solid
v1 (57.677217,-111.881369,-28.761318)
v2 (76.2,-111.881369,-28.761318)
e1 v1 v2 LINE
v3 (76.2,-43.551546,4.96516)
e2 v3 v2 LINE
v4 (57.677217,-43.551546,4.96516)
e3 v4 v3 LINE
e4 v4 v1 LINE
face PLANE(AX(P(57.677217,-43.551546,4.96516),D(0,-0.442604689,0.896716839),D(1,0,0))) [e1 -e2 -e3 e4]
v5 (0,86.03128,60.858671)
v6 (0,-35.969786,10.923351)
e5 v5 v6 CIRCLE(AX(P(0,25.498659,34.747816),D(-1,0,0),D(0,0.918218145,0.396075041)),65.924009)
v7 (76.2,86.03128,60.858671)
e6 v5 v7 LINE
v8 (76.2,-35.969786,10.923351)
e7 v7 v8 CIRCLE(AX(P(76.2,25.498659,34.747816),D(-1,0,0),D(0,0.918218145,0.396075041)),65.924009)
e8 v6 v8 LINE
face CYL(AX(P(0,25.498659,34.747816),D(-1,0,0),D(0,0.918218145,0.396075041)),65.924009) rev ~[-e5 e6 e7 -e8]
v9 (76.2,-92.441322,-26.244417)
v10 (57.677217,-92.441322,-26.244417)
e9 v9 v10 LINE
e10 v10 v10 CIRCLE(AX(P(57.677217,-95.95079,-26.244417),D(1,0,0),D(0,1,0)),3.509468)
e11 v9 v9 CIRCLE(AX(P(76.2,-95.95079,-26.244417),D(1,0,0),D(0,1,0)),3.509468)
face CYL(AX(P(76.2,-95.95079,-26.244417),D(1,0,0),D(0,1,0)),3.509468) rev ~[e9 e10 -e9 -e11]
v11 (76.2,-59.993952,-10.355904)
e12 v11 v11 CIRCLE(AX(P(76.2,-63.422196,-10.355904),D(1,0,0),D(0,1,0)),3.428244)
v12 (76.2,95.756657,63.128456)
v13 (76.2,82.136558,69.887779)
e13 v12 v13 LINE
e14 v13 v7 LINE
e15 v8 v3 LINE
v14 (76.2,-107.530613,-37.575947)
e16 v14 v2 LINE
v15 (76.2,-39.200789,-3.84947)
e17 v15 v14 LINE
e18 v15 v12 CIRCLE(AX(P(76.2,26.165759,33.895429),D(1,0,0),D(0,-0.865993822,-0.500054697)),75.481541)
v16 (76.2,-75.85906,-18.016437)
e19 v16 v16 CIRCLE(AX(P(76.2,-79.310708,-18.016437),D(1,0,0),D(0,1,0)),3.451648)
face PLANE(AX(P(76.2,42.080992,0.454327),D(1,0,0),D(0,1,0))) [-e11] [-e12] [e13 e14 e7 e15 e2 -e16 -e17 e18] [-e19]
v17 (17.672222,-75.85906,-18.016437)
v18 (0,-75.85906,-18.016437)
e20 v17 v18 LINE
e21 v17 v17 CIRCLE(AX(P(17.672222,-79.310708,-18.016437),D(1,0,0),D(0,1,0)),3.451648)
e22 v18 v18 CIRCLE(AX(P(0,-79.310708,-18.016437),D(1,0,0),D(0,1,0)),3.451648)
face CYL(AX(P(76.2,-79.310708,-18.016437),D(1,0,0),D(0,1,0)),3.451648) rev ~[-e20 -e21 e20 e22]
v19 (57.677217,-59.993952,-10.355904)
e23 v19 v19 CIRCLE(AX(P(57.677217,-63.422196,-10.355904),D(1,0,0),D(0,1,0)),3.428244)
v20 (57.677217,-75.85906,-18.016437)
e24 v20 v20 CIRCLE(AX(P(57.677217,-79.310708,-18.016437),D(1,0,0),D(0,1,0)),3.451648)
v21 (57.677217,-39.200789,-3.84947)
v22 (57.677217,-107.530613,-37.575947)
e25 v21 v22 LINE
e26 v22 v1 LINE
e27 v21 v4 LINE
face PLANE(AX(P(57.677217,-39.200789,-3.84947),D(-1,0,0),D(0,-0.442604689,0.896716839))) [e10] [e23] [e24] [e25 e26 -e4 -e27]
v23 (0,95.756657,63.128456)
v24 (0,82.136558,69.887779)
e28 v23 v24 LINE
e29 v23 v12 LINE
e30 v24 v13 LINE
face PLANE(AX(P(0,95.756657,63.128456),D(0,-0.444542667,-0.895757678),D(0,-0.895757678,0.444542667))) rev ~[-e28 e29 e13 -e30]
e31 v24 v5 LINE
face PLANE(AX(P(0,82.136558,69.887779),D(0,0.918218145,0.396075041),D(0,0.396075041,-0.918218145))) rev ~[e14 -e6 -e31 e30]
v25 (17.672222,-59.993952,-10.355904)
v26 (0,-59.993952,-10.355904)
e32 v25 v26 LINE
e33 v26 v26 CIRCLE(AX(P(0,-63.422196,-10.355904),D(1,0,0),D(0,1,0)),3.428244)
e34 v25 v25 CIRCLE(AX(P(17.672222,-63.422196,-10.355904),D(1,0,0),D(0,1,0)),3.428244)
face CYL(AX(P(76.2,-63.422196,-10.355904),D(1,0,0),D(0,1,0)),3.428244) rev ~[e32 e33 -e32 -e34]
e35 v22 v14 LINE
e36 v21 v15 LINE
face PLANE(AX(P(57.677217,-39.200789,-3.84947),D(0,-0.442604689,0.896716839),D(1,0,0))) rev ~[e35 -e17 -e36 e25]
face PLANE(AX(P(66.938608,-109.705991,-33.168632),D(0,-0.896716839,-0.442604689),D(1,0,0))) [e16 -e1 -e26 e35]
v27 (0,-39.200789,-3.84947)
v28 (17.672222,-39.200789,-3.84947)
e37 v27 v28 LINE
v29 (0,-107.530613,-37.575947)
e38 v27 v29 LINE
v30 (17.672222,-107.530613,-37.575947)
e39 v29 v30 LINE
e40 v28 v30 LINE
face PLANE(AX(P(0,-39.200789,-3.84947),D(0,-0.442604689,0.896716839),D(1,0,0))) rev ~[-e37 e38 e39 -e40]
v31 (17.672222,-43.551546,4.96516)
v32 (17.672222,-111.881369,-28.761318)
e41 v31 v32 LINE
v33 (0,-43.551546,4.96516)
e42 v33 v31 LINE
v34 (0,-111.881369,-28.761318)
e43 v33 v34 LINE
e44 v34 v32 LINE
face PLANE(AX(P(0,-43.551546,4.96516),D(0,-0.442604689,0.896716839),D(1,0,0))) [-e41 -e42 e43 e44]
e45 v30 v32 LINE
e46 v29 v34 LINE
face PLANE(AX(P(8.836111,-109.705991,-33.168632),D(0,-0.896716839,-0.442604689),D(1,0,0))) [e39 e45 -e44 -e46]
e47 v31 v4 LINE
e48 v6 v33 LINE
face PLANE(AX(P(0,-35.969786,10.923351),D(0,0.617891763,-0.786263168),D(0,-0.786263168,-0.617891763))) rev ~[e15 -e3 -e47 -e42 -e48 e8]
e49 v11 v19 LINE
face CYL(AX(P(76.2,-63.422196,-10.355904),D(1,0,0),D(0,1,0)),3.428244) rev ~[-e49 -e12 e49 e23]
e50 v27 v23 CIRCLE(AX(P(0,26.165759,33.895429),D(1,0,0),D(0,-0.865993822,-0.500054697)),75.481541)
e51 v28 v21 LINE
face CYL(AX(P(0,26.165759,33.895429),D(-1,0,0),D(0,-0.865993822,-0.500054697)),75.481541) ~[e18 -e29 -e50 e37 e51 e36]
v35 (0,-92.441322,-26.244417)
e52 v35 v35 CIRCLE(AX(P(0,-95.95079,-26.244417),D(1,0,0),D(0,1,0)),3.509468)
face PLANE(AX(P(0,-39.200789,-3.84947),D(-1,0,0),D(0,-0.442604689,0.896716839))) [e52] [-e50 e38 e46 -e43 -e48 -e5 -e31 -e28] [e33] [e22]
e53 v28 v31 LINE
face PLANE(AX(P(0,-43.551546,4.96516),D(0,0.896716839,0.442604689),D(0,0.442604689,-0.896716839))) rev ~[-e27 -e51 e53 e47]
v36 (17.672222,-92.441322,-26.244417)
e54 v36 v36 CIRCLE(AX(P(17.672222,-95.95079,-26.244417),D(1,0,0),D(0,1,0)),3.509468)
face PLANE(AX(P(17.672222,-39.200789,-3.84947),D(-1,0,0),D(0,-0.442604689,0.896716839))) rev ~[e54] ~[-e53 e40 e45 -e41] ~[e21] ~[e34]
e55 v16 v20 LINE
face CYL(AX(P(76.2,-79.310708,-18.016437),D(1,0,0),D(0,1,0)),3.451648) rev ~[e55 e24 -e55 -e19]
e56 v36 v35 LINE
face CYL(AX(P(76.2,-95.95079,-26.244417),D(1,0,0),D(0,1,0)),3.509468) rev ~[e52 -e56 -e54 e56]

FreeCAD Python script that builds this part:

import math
import FreeCAD as App
import Part
import Sketcher
Q = App.Units.Quantity

doc = App.newDocument("Part")
params = doc.addObject("Spreadsheet::Sheet", "Params")
for row, (alias, value) in enumerate([
    ("pad1_length", "3 in"),
    ("pad2_length", "3 in"),
    ("pocket1_length", "5 in"),
    ("pocket2_length", "5 in"),
], start=1):
    params.set(f"A{row}", alias)
    params.set(f"B{row}", "=" + value)
    params.setAlias(f"B{row}", alias)

body = doc.addObject("PartDesign::Body", "Body")

# Sketch on YZ plane
sketch1 = doc.addObject("Sketcher::SketchObject", "Sketch")
body.addObject(sketch1)
sketch1.AttachmentSupport = (doc.YZ_Plane, [""])
sketch1.MapMode = "FlatFace"
sketch1.addGeometry(Part.LineSegment(App.Vector(-43.551546, 4.96516, 0), App.Vector(-39.200789, -3.84947, 0)), False)
sketch1.addGeometry(Part.ArcOfCircle(Part.Circle(App.Vector(26.165759, 33.895429, 0), App.Vector(0, 0, 1), 75.481541), math.radians(-149.996381), math.radians(22.7858)), False)
sketch1.addGeometry(Part.LineSegment(App.Vector(95.756657, 63.128456, 0), App.Vector(82.136558, 69.887779, 0)), False)
sketch1.addGeometry(Part.LineSegment(App.Vector(82.136558, 69.887779, 0), App.Vector(86.03128, 60.858671, 0)), False)
sketch1.addGeometry(Part.ArcOfCircle(Part.Circle(App.Vector(25.498659, 34.747816, 0), App.Vector(0, 0, 1), 65.924009), math.radians(-158.81424), math.radians(23.333038)), False)
sketch1.addGeometry(Part.LineSegment(App.Vector(-35.969786, 10.923351, 0), App.Vector(-43.551546, 4.96516, 0)), False)
sketch1.addConstraint(Sketcher.Constraint("Coincident", 0, 2, 1, 1))
sketch1.addConstraint(Sketcher.Constraint("Coincident", 1, 2, 2, 1))
sketch1.addConstraint(Sketcher.Constraint("Coincident", 2, 2, 3, 1))
sketch1.addConstraint(Sketcher.Constraint("Tangent", 3, 2, 4, 2))
sketch1.addConstraint(Sketcher.Constraint("Coincident", 4, 1, 5, 1))
sketch1.addConstraint(Sketcher.Constraint("Coincident", 5, 2, 0, 1))
sketch1.addConstraint(Sketcher.Constraint("Radius", 1, Q("75.481541 mm")))
sketch1.addConstraint(Sketcher.Constraint("Radius", 4, Q("65.924009 mm")))
sketch1.addConstraint(Sketcher.Constraint("DistanceX", 4, 3, 1, 3, Q("0.6671 mm")))
sketch1.addConstraint(Sketcher.Constraint("DistanceY", 0, 2, 1, 3, Q("37.744899 mm")))
sketch1.addConstraint(Sketcher.Constraint("DistanceX", 1, 3, 1, 2, Q("69.590899 mm")))
sketch1.addConstraint(Sketcher.Constraint("DistanceX", 2, 2, 1, 2, Q("13.620099 mm")))
sketch1.addConstraint(Sketcher.Constraint("Distance", 0, Q("9.829892 mm")))
sketch1.addConstraint(Sketcher.Constraint("DistanceX", -1, 1, 1, 3, Q("26.165759 mm")))
sketch1.addConstraint(Sketcher.Constraint("DistanceY", -1, 1, 1, 3, Q("33.895429 mm")))
sketch1.addConstraint(Sketcher.Constraint("DistanceY", -1, 1, 2, 2, Q("69.887779 mm")))
sketch1.addConstraint(Sketcher.Constraint("DistanceX", -1, 1, 3, 2, Q("86.03128 mm")))
sketch1.addConstraint(Sketcher.Constraint("DistanceY", -1, 1, 4, 1, Q("10.923351 mm")))
sketch1.addConstraint(Sketcher.Constraint("DistanceY", -1, 1, 5, 2, Q("4.96516 mm")))
pad1 = doc.addObject("PartDesign::Pad", "Pad")
body.addObject(pad1)
pad1.Profile = sketch1
pad1.setExpression("Length", "Params.pad1_length")

# Sketch on an angled plane
sketch2 = doc.addObject("Sketcher::SketchObject", "Sketch001")
body.addObject(sketch2)
sketch2.Placement = App.Placement(App.Vector(0, -33.049218, -16.312551), App.Rotation(App.Vector(1, 0, 0), App.Vector(0, -0.442604689, 0.896716839), App.Vector(0, -0.896716839, -0.442604689), "ZXY"))
sketch2.addGeometry(Part.LineSegment(App.Vector(0, 23.728461, 0), App.Vector(0, 13.898569, 0)), False)
sketch2.addGeometry(Part.LineSegment(App.Vector(0, 13.898569, 0), App.Vector(17.672222, 13.898569, 0)), False)
sketch2.addGeometry(Part.LineSegment(App.Vector(17.672222, 13.898569, 0), App.Vector(17.672222, 23.728461, 0)), False)
sketch2.addGeometry(Part.LineSegment(App.Vector(17.672222, 23.728461, 0), App.Vector(0, 23.728461, 0)), False)
sketch2.addGeometry(Part.LineSegment(App.Vector(57.677217, 23.728461, 0), App.Vector(57.677217, 13.898569, 0)), False)
sketch2.addGeometry(Part.LineSegment(App.Vector(57.677217, 13.898569, 0), App.Vector(76.2, 13.898569, 0)), False)
sketch2.addGeometry(Part.LineSegment(App.Vector(76.2, 13.898569, 0), App.Vector(76.2, 23.728461, 0)), False)
sketch2.addGeometry(Part.LineSegment(App.Vector(76.2, 23.728461, 0), App.Vector(57.677217, 23.728461, 0)), False)
sketch2.addConstraint(Sketcher.Constraint("Coincident", 0, 2, 1, 1))
sketch2.addConstraint(Sketcher.Constraint("Coincident", 1, 2, 2, 1))
sketch2.addConstraint(Sketcher.Constraint("Coincident", 2, 2, 3, 1))
sketch2.addConstraint(Sketcher.Constraint("Coincident", 3, 2, 0, 1))
sketch2.addConstraint(Sketcher.Constraint("Coincident", 4, 2, 5, 1))
sketch2.addConstraint(Sketcher.Constraint("Coincident", 5, 2, 6, 1))
sketch2.addConstraint(Sketcher.Constraint("Coincident", 6, 2, 7, 1))
sketch2.addConstraint(Sketcher.Constraint("Coincident", 7, 2, 4, 1))
sketch2.addConstraint(Sketcher.Constraint("Vertical", 0))
sketch2.addConstraint(Sketcher.Constraint("Horizontal", 1))
sketch2.addConstraint(Sketcher.Constraint("Vertical", 2))
sketch2.addConstraint(Sketcher.Constraint("Horizontal", 3))
sketch2.addConstraint(Sketcher.Constraint("Vertical", 4))
sketch2.addConstraint(Sketcher.Constraint("Horizontal", 5))
sketch2.addConstraint(Sketcher.Constraint("Vertical", 6))
sketch2.addConstraint(Sketcher.Constraint("Horizontal", 7))
sketch2.addConstraint(Sketcher.Constraint("PointOnObject", 0, 2, -2))
sketch2.addConstraint(Sketcher.Constraint("Horizontal", 1, 2, 4, 2))
sketch2.addConstraint(Sketcher.Constraint("Horizontal", 3, 2, 6, 2))
sketch2.addConstraint(Sketcher.Constraint("DistanceX", -1, 1, 5, 2, Q("3 in")))
sketch2.addConstraint(Sketcher.Constraint("DistanceY", 0, 2, 0, 1, Q("9.829892 mm")))
sketch2.addConstraint(Sketcher.Constraint("DistanceX", 1, 1, 1, 2, Q("17.672222 mm")))
sketch2.addConstraint(Sketcher.Constraint("DistanceX", 5, 1, 5, 2, Q("18.522783 mm")))
sketch2.addConstraint(Sketcher.Constraint("DistanceY", -1, 1, 0, 2, Q("13.898569 mm")))
pad2 = doc.addObject("PartDesign::Pad", "Pad001")
body.addObject(pad2)
pad2.Profile = sketch2
pad2.setExpression("Length", "Params.pad2_length")

# Sketch on YZ plane
sketch3 = doc.addObject("Sketcher::SketchObject", "Sketch002")
body.addObject(sketch3)
sketch3.AttachmentSupport = (doc.YZ_Plane, [""])
sketch3.MapMode = "FlatFace"
sketch3.AttachmentOffset = App.Placement(App.Vector(0, 0, 3 * 25.4), App.Rotation())
sketch3.addGeometry(Part.Circle(App.Vector(-79.310708, -18.016437, 0), App.Vector(0, 0, 1), 3.451648), False)
sketch3.addGeometry(Part.Circle(App.Vector(-95.95079, -26.244417, 0), App.Vector(0, 0, 1), 3.509468), False)
sketch3.addConstraint(Sketcher.Constraint("Diameter", 0, Q("6.903295 mm")))
sketch3.addConstraint(Sketcher.Constraint("Diameter", 1, Q("7.018936 mm")))
sketch3.addConstraint(Sketcher.Constraint("DistanceX", 1, 3, -1, 1, Q("95.95079 mm")))
sketch3.addConstraint(Sketcher.Constraint("DistanceY", 1, 3, 0, 3, Q("8.22798 mm")))
sketch3.addConstraint(Sketcher.Constraint("DistanceX", 0, 3, -1, 1, Q("79.310708 mm")))
sketch3.addConstraint(Sketcher.Constraint("DistanceY", 0, 3, -1, 1, Q("18.016437 mm")))
pocket1 = doc.addObject("PartDesign::Pocket", "Pocket")
body.addObject(pocket1)
pocket1.Profile = sketch3
pocket1.setExpression("Length", "Params.pocket1_length")

# Sketch on YZ plane
sketch4 = doc.addObject("Sketcher::SketchObject", "Sketch003")
body.addObject(sketch4)
sketch4.AttachmentSupport = (doc.YZ_Plane, [""])
sketch4.MapMode = "FlatFace"
sketch4.AttachmentOffset = App.Placement(App.Vector(0, 0, 3 * 25.4), App.Rotation())
sketch4.addGeometry(Part.Circle(App.Vector(-63.422196, -10.355904, 0), App.Vector(0, 0, 1), 3.428244), False)
sketch4.addConstraint(Sketcher.Constraint("Diameter", 0, Q("6.856488 mm")))
sketch4.addConstraint(Sketcher.Constraint("DistanceX", 0, 3, -1, 1, Q("63.422196 mm")))
sketch4.addConstraint(Sketcher.Constraint("DistanceY", 0, 3, -1, 1, Q("10.355904 mm")))
pocket2 = doc.addObject("PartDesign::Pocket", "Pocket001")
body.addObject(pocket2)
pocket2.Profile = sketch4
pocket2.setExpression("Length", "Params.pocket2_length")

doc.recompute()
